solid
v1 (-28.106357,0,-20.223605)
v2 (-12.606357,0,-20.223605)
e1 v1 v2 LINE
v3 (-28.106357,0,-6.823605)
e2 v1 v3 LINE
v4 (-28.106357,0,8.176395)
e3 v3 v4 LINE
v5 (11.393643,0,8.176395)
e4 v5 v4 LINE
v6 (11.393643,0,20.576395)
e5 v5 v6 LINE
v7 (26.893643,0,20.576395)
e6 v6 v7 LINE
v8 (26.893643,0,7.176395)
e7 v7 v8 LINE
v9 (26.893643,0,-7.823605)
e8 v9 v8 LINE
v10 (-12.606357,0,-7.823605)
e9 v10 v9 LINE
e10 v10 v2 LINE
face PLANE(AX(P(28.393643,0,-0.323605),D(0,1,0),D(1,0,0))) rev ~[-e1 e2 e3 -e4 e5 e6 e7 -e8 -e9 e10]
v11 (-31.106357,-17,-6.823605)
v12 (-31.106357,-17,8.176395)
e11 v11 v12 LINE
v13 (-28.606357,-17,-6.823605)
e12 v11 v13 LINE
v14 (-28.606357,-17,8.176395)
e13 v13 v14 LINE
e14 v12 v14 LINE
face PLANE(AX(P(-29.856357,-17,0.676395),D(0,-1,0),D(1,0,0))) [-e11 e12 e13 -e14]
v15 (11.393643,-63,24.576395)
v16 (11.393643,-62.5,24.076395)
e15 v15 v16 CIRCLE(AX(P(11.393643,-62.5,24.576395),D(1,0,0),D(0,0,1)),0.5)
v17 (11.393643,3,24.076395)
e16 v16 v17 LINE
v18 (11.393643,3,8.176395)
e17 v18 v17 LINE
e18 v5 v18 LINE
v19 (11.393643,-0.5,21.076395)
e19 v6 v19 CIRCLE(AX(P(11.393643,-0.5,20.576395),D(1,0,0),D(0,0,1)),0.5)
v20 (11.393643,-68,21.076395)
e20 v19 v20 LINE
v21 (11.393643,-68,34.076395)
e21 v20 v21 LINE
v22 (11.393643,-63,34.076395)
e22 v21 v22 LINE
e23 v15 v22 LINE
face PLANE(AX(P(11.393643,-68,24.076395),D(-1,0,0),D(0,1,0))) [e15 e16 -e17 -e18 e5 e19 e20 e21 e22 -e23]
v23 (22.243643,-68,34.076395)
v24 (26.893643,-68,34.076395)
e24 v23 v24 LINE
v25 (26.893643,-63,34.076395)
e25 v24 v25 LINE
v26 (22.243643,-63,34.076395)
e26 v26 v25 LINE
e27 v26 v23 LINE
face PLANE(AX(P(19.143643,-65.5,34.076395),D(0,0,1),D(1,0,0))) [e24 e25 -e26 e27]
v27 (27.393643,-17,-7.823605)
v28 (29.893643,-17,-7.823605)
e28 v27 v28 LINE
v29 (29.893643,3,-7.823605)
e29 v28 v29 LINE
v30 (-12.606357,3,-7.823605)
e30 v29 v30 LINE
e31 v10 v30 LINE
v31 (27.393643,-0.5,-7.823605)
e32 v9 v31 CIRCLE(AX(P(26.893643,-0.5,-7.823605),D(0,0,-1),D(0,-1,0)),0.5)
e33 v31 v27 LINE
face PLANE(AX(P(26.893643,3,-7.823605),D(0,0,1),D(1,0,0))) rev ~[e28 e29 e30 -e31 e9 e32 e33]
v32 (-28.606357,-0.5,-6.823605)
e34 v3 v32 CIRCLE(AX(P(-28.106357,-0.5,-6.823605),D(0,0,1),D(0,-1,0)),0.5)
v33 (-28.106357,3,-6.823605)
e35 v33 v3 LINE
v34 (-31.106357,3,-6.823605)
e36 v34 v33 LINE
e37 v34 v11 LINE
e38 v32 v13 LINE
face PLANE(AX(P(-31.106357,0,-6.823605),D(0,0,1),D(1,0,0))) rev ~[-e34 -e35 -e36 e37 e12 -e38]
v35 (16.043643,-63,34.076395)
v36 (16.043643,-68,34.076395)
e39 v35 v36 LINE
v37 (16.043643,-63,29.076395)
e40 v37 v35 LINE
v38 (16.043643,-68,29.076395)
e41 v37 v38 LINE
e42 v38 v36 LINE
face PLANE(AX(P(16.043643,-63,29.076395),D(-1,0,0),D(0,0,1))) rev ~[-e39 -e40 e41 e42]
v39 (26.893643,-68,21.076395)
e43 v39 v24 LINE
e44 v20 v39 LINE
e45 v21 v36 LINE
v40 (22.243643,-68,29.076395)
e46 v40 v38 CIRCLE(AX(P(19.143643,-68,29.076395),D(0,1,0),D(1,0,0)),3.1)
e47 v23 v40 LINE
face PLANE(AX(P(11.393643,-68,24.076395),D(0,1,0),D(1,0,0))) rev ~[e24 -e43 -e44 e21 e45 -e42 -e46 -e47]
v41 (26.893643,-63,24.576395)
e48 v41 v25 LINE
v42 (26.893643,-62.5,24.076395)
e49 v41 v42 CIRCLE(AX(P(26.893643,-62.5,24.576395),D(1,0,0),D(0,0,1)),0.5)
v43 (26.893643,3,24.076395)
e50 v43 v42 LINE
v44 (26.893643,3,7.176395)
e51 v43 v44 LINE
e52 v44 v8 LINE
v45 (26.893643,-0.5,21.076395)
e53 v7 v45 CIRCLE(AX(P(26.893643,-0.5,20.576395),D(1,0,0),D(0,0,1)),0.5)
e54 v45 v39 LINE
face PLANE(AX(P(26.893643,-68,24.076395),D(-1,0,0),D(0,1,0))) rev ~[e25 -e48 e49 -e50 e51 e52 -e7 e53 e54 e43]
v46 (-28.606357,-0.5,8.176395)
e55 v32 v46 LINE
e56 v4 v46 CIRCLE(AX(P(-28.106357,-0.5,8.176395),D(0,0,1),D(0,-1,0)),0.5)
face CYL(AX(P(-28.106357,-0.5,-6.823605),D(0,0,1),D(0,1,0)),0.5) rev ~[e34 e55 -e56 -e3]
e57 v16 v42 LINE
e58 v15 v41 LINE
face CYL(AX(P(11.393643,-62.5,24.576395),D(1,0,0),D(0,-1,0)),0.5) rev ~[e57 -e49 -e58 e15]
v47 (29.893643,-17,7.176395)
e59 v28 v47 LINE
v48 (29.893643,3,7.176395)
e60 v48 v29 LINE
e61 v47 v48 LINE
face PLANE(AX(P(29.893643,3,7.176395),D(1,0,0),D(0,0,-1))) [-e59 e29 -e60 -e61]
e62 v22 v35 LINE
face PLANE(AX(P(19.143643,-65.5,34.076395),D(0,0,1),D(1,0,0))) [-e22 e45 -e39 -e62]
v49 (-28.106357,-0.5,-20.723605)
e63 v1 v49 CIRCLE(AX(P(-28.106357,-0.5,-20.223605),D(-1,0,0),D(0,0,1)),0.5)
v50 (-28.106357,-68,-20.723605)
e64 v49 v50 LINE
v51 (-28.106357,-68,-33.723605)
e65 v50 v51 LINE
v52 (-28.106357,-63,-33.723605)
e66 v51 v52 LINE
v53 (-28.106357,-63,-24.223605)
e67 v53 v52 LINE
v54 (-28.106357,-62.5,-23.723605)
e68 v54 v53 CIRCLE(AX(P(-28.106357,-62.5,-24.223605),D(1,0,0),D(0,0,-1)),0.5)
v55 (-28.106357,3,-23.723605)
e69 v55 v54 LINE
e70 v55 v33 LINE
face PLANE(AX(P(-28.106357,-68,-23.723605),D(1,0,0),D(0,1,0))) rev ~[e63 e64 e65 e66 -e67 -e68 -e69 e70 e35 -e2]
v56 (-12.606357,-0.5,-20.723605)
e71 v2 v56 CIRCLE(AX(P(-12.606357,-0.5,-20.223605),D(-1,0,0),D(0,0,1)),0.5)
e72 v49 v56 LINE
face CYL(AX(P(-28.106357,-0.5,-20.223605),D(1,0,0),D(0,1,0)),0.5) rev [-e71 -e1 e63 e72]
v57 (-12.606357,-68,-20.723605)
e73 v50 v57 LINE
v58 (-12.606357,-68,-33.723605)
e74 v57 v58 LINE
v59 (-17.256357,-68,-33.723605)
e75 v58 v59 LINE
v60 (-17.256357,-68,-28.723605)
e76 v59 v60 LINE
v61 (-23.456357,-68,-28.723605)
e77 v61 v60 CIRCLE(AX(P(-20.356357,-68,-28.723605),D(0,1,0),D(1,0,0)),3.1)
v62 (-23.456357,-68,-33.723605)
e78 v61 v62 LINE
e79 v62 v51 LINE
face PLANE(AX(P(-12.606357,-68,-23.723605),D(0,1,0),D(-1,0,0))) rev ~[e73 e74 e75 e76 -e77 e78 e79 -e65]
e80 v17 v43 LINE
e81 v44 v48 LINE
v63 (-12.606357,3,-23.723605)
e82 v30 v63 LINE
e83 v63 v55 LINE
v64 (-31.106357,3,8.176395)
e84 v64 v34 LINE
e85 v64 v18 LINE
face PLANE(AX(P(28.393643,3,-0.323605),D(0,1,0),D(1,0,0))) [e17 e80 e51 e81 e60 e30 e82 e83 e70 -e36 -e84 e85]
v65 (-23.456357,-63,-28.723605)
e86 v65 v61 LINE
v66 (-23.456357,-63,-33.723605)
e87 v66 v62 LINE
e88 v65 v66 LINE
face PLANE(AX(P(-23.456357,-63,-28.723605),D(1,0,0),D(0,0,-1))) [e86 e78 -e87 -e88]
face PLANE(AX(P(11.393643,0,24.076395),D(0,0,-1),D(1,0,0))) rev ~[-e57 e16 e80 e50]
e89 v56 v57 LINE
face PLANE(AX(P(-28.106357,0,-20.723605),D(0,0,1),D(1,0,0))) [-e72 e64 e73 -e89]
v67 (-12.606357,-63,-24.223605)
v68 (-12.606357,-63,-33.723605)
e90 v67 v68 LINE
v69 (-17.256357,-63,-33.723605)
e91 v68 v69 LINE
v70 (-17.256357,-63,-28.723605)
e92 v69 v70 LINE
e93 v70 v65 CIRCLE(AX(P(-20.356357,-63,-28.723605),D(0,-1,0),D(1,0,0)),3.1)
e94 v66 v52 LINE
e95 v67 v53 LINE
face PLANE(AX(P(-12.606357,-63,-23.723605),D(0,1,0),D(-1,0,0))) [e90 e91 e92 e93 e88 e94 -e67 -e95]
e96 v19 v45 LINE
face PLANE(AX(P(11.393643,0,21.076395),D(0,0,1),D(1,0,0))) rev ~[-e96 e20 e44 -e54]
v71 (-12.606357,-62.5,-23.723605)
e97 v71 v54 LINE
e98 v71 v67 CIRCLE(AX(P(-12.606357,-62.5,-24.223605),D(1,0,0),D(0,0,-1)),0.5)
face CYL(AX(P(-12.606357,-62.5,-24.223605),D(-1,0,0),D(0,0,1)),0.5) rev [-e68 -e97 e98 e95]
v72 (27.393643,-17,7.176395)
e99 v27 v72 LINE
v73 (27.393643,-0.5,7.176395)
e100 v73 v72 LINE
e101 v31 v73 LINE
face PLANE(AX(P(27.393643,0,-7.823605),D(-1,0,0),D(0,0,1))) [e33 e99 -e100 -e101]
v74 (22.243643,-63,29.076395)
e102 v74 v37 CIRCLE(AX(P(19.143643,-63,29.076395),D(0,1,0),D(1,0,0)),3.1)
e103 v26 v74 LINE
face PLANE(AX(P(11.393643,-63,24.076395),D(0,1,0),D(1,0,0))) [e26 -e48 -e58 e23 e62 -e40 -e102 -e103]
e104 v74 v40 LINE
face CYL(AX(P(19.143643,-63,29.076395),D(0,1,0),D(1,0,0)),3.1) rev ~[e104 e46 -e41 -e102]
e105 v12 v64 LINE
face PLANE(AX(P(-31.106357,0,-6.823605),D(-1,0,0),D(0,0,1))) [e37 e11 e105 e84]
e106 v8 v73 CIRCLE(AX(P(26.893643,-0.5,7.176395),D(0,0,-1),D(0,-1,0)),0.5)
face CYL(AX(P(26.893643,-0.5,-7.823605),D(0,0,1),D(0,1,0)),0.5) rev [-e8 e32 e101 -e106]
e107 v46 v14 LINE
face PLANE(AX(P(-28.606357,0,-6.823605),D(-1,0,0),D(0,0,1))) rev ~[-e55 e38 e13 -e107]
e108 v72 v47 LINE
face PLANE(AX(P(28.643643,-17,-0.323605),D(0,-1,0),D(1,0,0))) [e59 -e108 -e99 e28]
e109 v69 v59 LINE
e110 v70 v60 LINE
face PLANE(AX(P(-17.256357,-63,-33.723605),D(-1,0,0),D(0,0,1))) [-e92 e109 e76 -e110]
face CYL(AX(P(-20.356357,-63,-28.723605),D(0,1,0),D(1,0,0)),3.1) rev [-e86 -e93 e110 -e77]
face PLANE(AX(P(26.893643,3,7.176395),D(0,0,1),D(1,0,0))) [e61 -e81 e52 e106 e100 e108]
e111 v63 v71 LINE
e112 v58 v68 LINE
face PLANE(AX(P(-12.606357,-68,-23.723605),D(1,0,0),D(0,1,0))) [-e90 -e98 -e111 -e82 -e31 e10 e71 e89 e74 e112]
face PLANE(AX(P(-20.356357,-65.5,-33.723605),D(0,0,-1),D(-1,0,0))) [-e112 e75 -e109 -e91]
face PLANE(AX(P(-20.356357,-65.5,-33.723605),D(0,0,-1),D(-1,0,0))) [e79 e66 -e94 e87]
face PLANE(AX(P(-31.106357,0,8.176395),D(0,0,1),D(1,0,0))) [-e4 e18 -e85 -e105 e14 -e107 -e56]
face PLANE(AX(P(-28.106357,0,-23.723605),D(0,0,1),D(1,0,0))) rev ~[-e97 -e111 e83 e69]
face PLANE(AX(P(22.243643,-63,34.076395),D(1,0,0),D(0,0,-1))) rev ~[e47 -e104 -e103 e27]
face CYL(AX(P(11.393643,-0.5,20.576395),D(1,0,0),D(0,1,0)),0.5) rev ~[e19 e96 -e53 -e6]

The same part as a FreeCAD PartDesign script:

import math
import FreeCAD as App
import Part
import Sketcher

V = App.Vector
Q = App.Units.Quantity


def edges_at(feature, points):
    """Names of the edges that pass closest to the given points."""
    edges = feature.Shape.Edges
    near = lambda p: min(range(len(edges)), key=lambda i: edges[i].distToShape(Part.Vertex(*p))[0])
    return sorted({f"Edge{near(p) + 1}" for p in points})

doc = App.newDocument("Part")
body = doc.addObject("PartDesign::Body", "Body")

# Sketch on XZ plane
sketch1 = doc.addObject("Sketcher::SketchObject", "Sketch")
body.addObject(sketch1)
sketch1.AttachmentSupport = (doc.XZ_Plane, [""])
sketch1.MapMode = "FlatFace"
sketch1.addGeometry([
    Part.LineSegment(V(-28, 8, 0), V(11, 8, 0)),  # 0
    Part.LineSegment(V(11, 8, 0), V(11, 24, 0)),  # 1
    Part.LineSegment(V(11, 24, 0), V(27, 24, 0)),  # 2
    Part.LineSegment(V(27, 24, 0), V(27, -8, 0)),  # 3
    Part.LineSegment(V(27, -8, 0), V(-13, -8, 0)),  # 4
    Part.LineSegment(V(-13, -8, 0), V(-13, -24, 0)),  # 5
    Part.LineSegment(V(-13, -24, 0), V(-28, -24, 0)),  # 6
    Part.LineSegment(V(-28, -24, 0), V(-28, 8, 0)),  # 7
], False)
sketch1.addConstraint([
    Sketcher.Constraint("Coincident", 0, 2, 1, 1),
    Sketcher.Constraint("Coincident", 1, 2, 2, 1),
    Sketcher.Constraint("Coincident", 2, 2, 3, 1),
    Sketcher.Constraint("Coincident", 3, 2, 4, 1),
    Sketcher.Constraint("Coincident", 4, 2, 5, 1),
    Sketcher.Constraint("Coincident", 5, 2, 6, 1),
    Sketcher.Constraint("Coincident", 6, 2, 7, 1),
    Sketcher.Constraint("Coincident", 7, 2, 0, 1),
    Sketcher.Constraint("Horizontal", 0),
    Sketcher.Constraint("Vertical", 1),
    Sketcher.Constraint("Horizontal", 2),
    Sketcher.Constraint("Vertical", 3),
    Sketcher.Constraint("Horizontal", 4),
    Sketcher.Constraint("Vertical", 5),
    Sketcher.Constraint("Horizontal", 6),
    Sketcher.Constraint("Vertical", 7),
    Sketcher.Constraint("Equal", 0, 4),
    Sketcher.Constraint("Equal", 1, 5),
    Sketcher.Constraint("DistanceX", 0, 1, 0, 2, Q("39.5 mm")),
    Sketcher.Constraint("DistanceX", 2, 1, 2, 2, Q("15.5 mm")),
    Sketcher.Constraint("DistanceY", 1, 1, 1, 2, Q("15.9 mm")),
    Sketcher.Constraint("DistanceY", 3, 2, 3, 1, Q("31.9 mm")),
    Sketcher.Constraint("DistanceX", -1, 1, 0, 2, Q("11.393643 mm")),
    Sketcher.Constraint("DistanceY", -1, 1, 0, 2, Q("8.176395 mm")),
])
pad1 = doc.addObject("PartDesign::Pad", "Pad")
body.addObject(pad1)
pad1.Profile = sketch1
pad1.Length = 3
pad1.Reversed = True

# Sketch on XZ plane
sketch2 = doc.addObject("Sketcher::SketchObject", "Sketch001")
body.addObject(sketch2)
sketch2.AttachmentSupport = (doc.XZ_Plane, [""])
sketch2.MapMode = "FlatFace"
sketch2.AttachmentOffset = App.Placement(V(0, 0, -3), App.Rotation())
sketch2.addGeometry([
    Part.LineSegment(V(26.9, -7.8, 0), V(26.9, 7.2, 0)),  # 0
    Part.LineSegment(V(26.9, 7.2, 0), V(29.9, 7.2, 0)),  # 1
    Part.LineSegment(V(29.9, 7.2, 0), V(29.9, -7.8, 0)),  # 2
    Part.LineSegment(V(29.9, -7.8, 0), V(26.9, -7.8, 0)),  # 3
    Part.LineSegment(V(-31.1, -6.8, 0), V(-31.1, 8.2, 0)),  # 4
    Part.LineSegment(V(-31.1, 8.2, 0), V(-28.1, 8.2, 0)),  # 5
    Part.LineSegment(V(-28.1, 8.2, 0), V(-28.1, -6.8, 0)),  # 6
    Part.LineSegment(V(-28.1, -6.8, 0), V(-31.1, -6.8, 0)),  # 7
], False)
sketch2.addConstraint([
    Sketcher.Constraint("Coincident", 0, 2, 1, 1),
    Sketcher.Constraint("Coincident", 1, 2, 2, 1),
    Sketcher.Constraint("Coincident", 2, 2, 3, 1),
    Sketcher.Constraint("Coincident", 3, 2, 0, 1),
    Sketcher.Constraint("Coincident", 4, 2, 5, 1),
    Sketcher.Constraint("Coincident", 5, 2, 6, 1),
    Sketcher.Constraint("Coincident", 6, 2, 7, 1),
    Sketcher.Constraint("Coincident", 7, 2, 4, 1),
    Sketcher.Constraint("Vertical", 0),
    Sketcher.Constraint("Horizontal", 1),
    Sketcher.Constraint("Vertical", 2),
    Sketcher.Constraint("Horizontal", 3),
    Sketcher.Constraint("Vertical", 4),
    Sketcher.Constraint("Horizontal", 5),
    Sketcher.Constraint("Vertical", 6),
    Sketcher.Constraint("Horizontal", 7),
    Sketcher.Constraint("Equal", 3, 5),
    Sketcher.Constraint("Equal", 2, 4),
    Sketcher.Constraint("DistanceX", 1, 1, 1, 2, Q("3 mm")),
    Sketcher.Constraint("DistanceY", 0, 1, 0, 2, Q("15 mm")),
    Sketcher.Constraint("DistanceX", 4, 2, 0, 2, Q("58 mm")),
    Sketcher.Constraint("DistanceY", 0, 2, 4, 2, Q("1 mm")),
    Sketcher.Constraint("DistanceX", -1, 1, 0, 2, Q("26.893643 mm")),
    Sketcher.Constraint("DistanceY", -1, 1, 0, 2, Q("7.176395 mm")),
])
pad2 = doc.addObject("PartDesign::Pad", "Pad001")
body.addObject(pad2)
pad2.Profile = sketch2
pad2.Length = 3

# Sketch on XZ plane
sketch3 = doc.addObject("Sketcher::SketchObject", "Sketch002")
body.addObject(sketch3)
sketch3.AttachmentSupport = (doc.XZ_Plane, [""])
sketch3.MapMode = "FlatFace"
sketch3.addGeometry([
    Part.LineSegment(V(-31.1, 8.2, 0), V(-31.1, -6.8, 0)),  # 0
    Part.LineSegment(V(-31.1, -6.8, 0), V(-28.6, -6.8, 0)),  # 1
    Part.LineSegment(V(-28.6, -6.8, 0), V(-28.6, 8.2, 0)),  # 2
    Part.LineSegment(V(-28.6, 8.2, 0), V(-31.1, 8.2, 0)),  # 3
    Part.LineSegment(V(27.4, 7.2, 0), V(27.4, -7.8, 0)),  # 4
    Part.LineSegment(V(27.4, -7.8, 0), V(29.9, -7.8, 0)),  # 5
    Part.LineSegment(V(29.9, -7.8, 0), V(29.9, 7.2, 0)),  # 6
    Part.LineSegment(V(29.9, 7.2, 0), V(27.4, 7.2, 0)),  # 7
], False)
sketch3.addConstraint([
    Sketcher.Constraint("Coincident", 0, 2, 1, 1),
    Sketcher.Constraint("Coincident", 1, 2, 2, 1),
    Sketcher.Constraint("Coincident", 2, 2, 3, 1),
    Sketcher.Constraint("Coincident", 3, 2, 0, 1),
    Sketcher.Constraint("Coincident", 4, 2, 5, 1),
    Sketcher.Constraint("Coincident", 5, 2, 6, 1),
    Sketcher.Constraint("Coincident", 6, 2, 7, 1),
    Sketcher.Constraint("Coincident", 7, 2, 4, 1),
    Sketcher.Constraint("Vertical", 0),
    Sketcher.Constraint("Horizontal", 1),
    Sketcher.Constraint("Vertical", 2),
    Sketcher.Constraint("Horizontal", 3),
    Sketcher.Constraint("Vertical", 4),
    Sketcher.Constraint("Horizontal", 5),
    Sketcher.Constraint("Vertical", 6),
    Sketcher.Constraint("Horizontal", 7),
    Sketcher.Constraint("Equal", 3, 5),
    Sketcher.Constraint("Equal", 2, 4),
    Sketcher.Constraint("DistanceY", 0, 2, 0, 1, Q("15 mm")),
    Sketcher.Constraint("DistanceX", 1, 1, 1, 2, Q("2.5 mm")),
    Sketcher.Constraint("DistanceX", 1, 2, 4, 2, Q("56 mm")),
    Sketcher.Constraint("DistanceY", 4, 2, 1, 2, Q("1 mm")),
    Sketcher.Constraint("DistanceX", 0, 2, -1, 1, Q("31.106357 mm")),
    Sketcher.Constraint("DistanceY", 0, 2, -1, 1, Q("6.823605 mm")),
])
pad3 = doc.addObject("PartDesign::Pad", "Pad002")
body.addObject(pad3)
pad3.Profile = sketch3
pad3.Length = 17

# Sketch on XZ plane
sketch4 = doc.addObject("Sketcher::SketchObject", "Sketch003")
body.addObject(sketch4)
sketch4.AttachmentSupport = (doc.XZ_Plane, [""])
sketch4.MapMode = "FlatFace"
sketch4.addGeometry([
    Part.LineSegment(V(-28.1, -20.7, 0), V(-28.1, -23.7, 0)),  # 0
    Part.LineSegment(V(-28.1, -23.7, 0), V(-12.6, -23.7, 0)),  # 1
    Part.LineSegment(V(-12.6, -23.7, 0), V(-12.6, -20.7, 0)),  # 2
    Part.LineSegment(V(-12.6, -20.7, 0), V(-28.1, -20.7, 0)),  # 3
    Part.LineSegment(V(11.4, 24.1, 0), V(11.4, 21.1, 0)),  # 4
    Part.LineSegment(V(11.4, 21.1, 0), V(26.9, 21.1, 0)),  # 5
    Part.LineSegment(V(26.9, 21.1, 0), V(26.9, 24.1, 0)),  # 6
    Part.LineSegment(V(26.9, 24.1, 0), V(11.4, 24.1, 0)),  # 7
], False)
sketch4.addConstraint([
    Sketcher.Constraint("Coincident", 0, 2, 1, 1),
    Sketcher.Constraint("Coincident", 1, 2, 2, 1),
    Sketcher.Constraint("Coincident", 2, 2, 3, 1),
    Sketcher.Constraint("Coincident", 3, 2, 0, 1),
    Sketcher.Constraint("Coincident", 4, 2, 5, 1),
    Sketcher.Constraint("Coincident", 5, 2, 6, 1),
    Sketcher.Constraint("Coincident", 6, 2, 7, 1),
    Sketcher.Constraint("Coincident", 7, 2, 4, 1),
    Sketcher.Constraint("Vertical", 0),
    Sketcher.Constraint("Horizontal", 1),
    Sketcher.Constraint("Vertical", 2),
    Sketcher.Constraint("Horizontal", 3),
    Sketcher.Constraint("Vertical", 4),
    Sketcher.Constraint("Horizontal", 5),
    Sketcher.Constraint("Vertical", 6),
    Sketcher.Constraint("Horizontal", 7),
    Sketcher.Constraint("Equal", 3, 5),
    Sketcher.Constraint("Equal", 2, 4),
    Sketcher.Constraint("DistanceY", 0, 2, 0, 1, Q("3 mm")),
    Sketcher.Constraint("DistanceX", 1, 1, 1, 2, Q("15.5 mm")),
    Sketcher.Constraint("DistanceX", 2, 2, 4, 2, Q("24 mm")),
    Sketcher.Constraint("DistanceY", 2, 2, 4, 2, Q("41.8 mm")),
    Sketcher.Constraint("DistanceX", 0, 2, -1, 1, Q("28.106357 mm")),
    Sketcher.Constraint("DistanceY", 0, 2, -1, 1, Q("23.723605 mm")),
])
pad4 = doc.addObject("PartDesign::Pad", "Pad003")
body.addObject(pad4)
pad4.Profile = sketch4
pad4.Length = 68

# Sketch on XY plane
sketch5 = doc.addObject("Sketcher::SketchObject", "Sketch004")
body.addObject(sketch5)
sketch5.AttachmentSupport = (doc.XY_Plane, [""])
sketch5.MapMode = "FlatFace"
sketch5.AttachmentOffset = App.Placement(V(0, 0, -23.723605), App.Rotation())
sketch5.addGeometry([
    Part.LineSegment(V(-13, -63, 0), V(-13, -68, 0)),
    Part.LineSegment(V(-13, -68, 0), V(-28, -68, 0)),
    Part.LineSegment(V(-28, -68, 0), V(-28, -63, 0)),
    Part.LineSegment(V(-28, -63, 0), V(-13, -63, 0)),
], False)
sketch5.addConstraint([
    Sketcher.Constraint("Coincident", 0, 2, 1, 1),
    Sketcher.Constraint("Coincident", 1, 2, 2, 1),
    Sketcher.Constraint("Coincident", 2, 2, 3, 1),
    Sketcher.Constraint("Coincident", 3, 2, 0, 1),
    Sketcher.Constraint("Vertical", 0),
    Sketcher.Constraint("Horizontal", 1),
    Sketcher.Constraint("Vertical", 2),
    Sketcher.Constraint("Horizontal", 3),
    Sketcher.Constraint("DistanceY", 0, 2, 0, 1, Q("5 mm")),
    Sketcher.Constraint("DistanceX", 1, 2, 1, 1, Q("15.5 mm")),
    Sketcher.Constraint("DistanceY", 0, 2, -1, 1, Q("68 mm")),
    Sketcher.Constraint("DistanceX", 0, 2, -1, 1, Q("12.606357 mm")),
])
pad5 = doc.addObject("PartDesign::Pad", "Pad004")
body.addObject(pad5)
pad5.Profile = sketch5
pad5.Length = 10
pad5.Reversed = True

# Sketch on XY plane
sketch6 = doc.addObject("Sketcher::SketchObject", "Sketch005")
body.addObject(sketch6)
sketch6.AttachmentSupport = (doc.XY_Plane, [""])
sketch6.MapMode = "FlatFace"
sketch6.AttachmentOffset = App.Placement(V(0, 0, 24.076395), App.Rotation())
sketch6.addGeometry([
    Part.LineSegment(V(11, -63, 0), V(11, -68, 0)),
    Part.LineSegment(V(11, -68, 0), V(27, -68, 0)),
    Part.LineSegment(V(27, -68, 0), V(27, -63, 0)),
    Part.LineSegment(V(27, -63, 0), V(11, -63, 0)),
], False)
sketch6.addConstraint([
    Sketcher.Constraint("Coincident", 0, 2, 1, 1),
    Sketcher.Constraint("Coincident", 1, 2, 2, 1),
    Sketcher.Constraint("Coincident", 2, 2, 3, 1),
    Sketcher.Constraint("Coincident", 3, 2, 0, 1),
    Sketcher.Constraint("Vertical", 0),
    Sketcher.Constraint("Horizontal", 1),
    Sketcher.Constraint("Vertical", 2),
    Sketcher.Constraint("Horizontal", 3),
    Sketcher.Constraint("DistanceY", 0, 2, 0, 1, Q("5 mm")),
    Sketcher.Constraint("DistanceX", 1, 1, 1, 2, Q("15.5 mm")),
    Sketcher.Constraint("DistanceY", 0, 2, -1, 1, Q("68 mm")),
    Sketcher.Constraint("DistanceX", -1, 1, 0, 2, Q("11.393643 mm")),
])
pad6 = doc.addObject("PartDesign::Pad", "Pad005")
body.addObject(pad6)
pad6.Profile = sketch6
pad6.Length = 10

# Sketch on XZ plane
sketch7 = doc.addObject("Sketcher::SketchObject", "Sketch006")
body.addObject(sketch7)
sketch7.AttachmentSupport = (doc.XZ_Plane, [""])
sketch7.MapMode = "FlatFace"
sketch7.AttachmentOffset = App.Placement(V(0, 0, 63), App.Rotation())
sketch7.addGeometry([
    Part.LineSegment(V(16, 29.1, 0), V(16, 34.1, 0)),
    Part.LineSegment(V(16, 34.1, 0), V(22.2, 34.1, 0)),
    Part.LineSegment(V(22.2, 34.1, 0), V(22.2, 29.1, 0)),
    Part.ArcOfCircle(Part.Circle(V(19.1, 29.1, 0), V(0, 0, 1), 3.1), math.radians(180), math.radians(360)),
], False)
sketch7.addConstraint([
    Sketcher.Constraint("Coincident", 0, 2, 1, 1),
    Sketcher.Constraint("Coincident", 1, 2, 2, 1),
    Sketcher.Constraint("Tangent", 2, 2, 3, 2),
    Sketcher.Constraint("Tangent", 3, 1, 0, 1),
    Sketcher.Constraint("Vertical", 0),
    Sketcher.Constraint("Horizontal", 1),
    Sketcher.Constraint("Vertical", 2),
    Sketcher.Constraint("Radius", 3, Q("3.1 mm")),
    Sketcher.Constraint("DistanceY", 0, 1, 0, 2, Q("5 mm")),
    Sketcher.Constraint("DistanceX", -1, 1, 3, 3, Q("19.143643 mm")),
    Sketcher.Constraint("DistanceY", -1, 1, 3, 3, Q("29.076395 mm")),
])
pocket1 = doc.addObject("PartDesign::Pocket", "Pocket")
body.addObject(pocket1)
pocket1.Profile = sketch7
pocket1.Length = 10
pocket1.Reversed = True

# Sketch on XZ plane
sketch8 = doc.addObject("Sketcher::SketchObject", "Sketch007")
body.addObject(sketch8)
sketch8.AttachmentSupport = (doc.XZ_Plane, [""])
sketch8.MapMode = "FlatFace"
sketch8.AttachmentOffset = App.Placement(V(0, 0, 63), App.Rotation())
sketch8.addGeometry([
    Part.LineSegment(V(-23.5, -33.7, 0), V(-23.5, -28.7, 0)),
    Part.ArcOfCircle(Part.Circle(V(-20.4, -28.7, 0), V(0, 0, 1), 3.1), math.radians(0), math.radians(180)),
    Part.LineSegment(V(-17.3, -28.7, 0), V(-17.3, -33.7, 0)),
    Part.LineSegment(V(-17.3, -33.7, 0), V(-23.5, -33.7, 0)),
], False)
sketch8.addConstraint([
    Sketcher.Constraint("Tangent", 0, 2, 1, 2),
    Sketcher.Constraint("Tangent", 1, 1, 2, 1),
    Sketcher.Constraint("Coincident", 2, 2, 3, 1),
    Sketcher.Constraint("Coincident", 3, 2, 0, 1),
    Sketcher.Constraint("Vertical", 0),
    Sketcher.Constraint("Vertical", 2),
    Sketcher.Constraint("Horizontal", 3),
    Sketcher.Constraint("Radius", 1, Q("3.1 mm")),
    Sketcher.Constraint("DistanceY", 0, 1, 0, 2, Q("5 mm")),
    Sketcher.Constraint("DistanceX", 1, 3, -1, 1, Q("20.356357 mm")),
    Sketcher.Constraint("DistanceY", 1, 3, -1, 1, Q("28.723605 mm")),
])
pocket2 = doc.addObject("PartDesign::Pocket", "Pocket001")
body.addObject(pocket2)
pocket2.Profile = sketch8
pocket2.Length = 10
pocket2.Reversed = True
doc.recompute()

fillet = doc.addObject("PartDesign::Fillet", "Fillet")
body.addObject(fillet)
fillet.Base = (pocket2, edges_at(pocket2, [
    (19.144, -63, 24.076),
    (19.144, 0, 21.076),
    (27.394, 0, -0.324),
    (-28.606, 0, 0.676),
    (-20.356, 0, -20.724),
    (-20.356, -63, -23.724),
]))
fillet.Radius = 0.5

doc.recompute()
